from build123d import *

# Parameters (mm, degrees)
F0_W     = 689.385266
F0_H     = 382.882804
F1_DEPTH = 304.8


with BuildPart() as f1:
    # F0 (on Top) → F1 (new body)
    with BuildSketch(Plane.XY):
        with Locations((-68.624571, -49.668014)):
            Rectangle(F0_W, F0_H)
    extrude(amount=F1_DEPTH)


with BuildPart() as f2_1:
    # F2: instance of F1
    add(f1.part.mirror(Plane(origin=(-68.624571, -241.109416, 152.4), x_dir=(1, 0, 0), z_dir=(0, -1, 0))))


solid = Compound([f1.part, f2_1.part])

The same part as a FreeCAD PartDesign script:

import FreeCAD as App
import Part
import Sketcher
from FreeCAD import Vector
Q = App.Units.Quantity

doc = App.newDocument("Part")
body = doc.addObject("PartDesign::Body", "Body")

# Sketch on XY plane
sketch1 = body.newObject("Sketcher::SketchObject", "Sketch")
sketch1.AttachmentSupport = (doc.getObject("XY_Plane"), [""])
sketch1.MapMode = "FlatFace"
sketch1.addGeometry([
    Part.LineSegment(Vector(-413.317204, 141.773388, 0), Vector(-413.317204, -241.109416, 0)),
    Part.LineSegment(Vector(-413.317204, -241.109416, 0), Vector(276.068062, -241.109416, 0)),
    Part.LineSegment(Vector(276.068062, -241.109416, 0), Vector(276.068062, 141.773388, 0)),
    Part.LineSegment(Vector(276.068062, 141.773388, 0), Vector(-413.317204, 141.773388, 0)),
], False)
sketch1.addConstraint([
    Sketcher.Constraint("Coincident", 0, 2, 1, 1),
    Sketcher.Constraint("Coincident", 1, 2, 2, 1),
    Sketcher.Constraint("Coincident", 2, 2, 3, 1),
    Sketcher.Constraint("Coincident", 3, 2, 0, 1),
    Sketcher.Constraint("Vertical", 0),
    Sketcher.Constraint("Horizontal", 1),
    Sketcher.Constraint("Vertical", 2),
    Sketcher.Constraint("Horizontal", 3),
    Sketcher.Constraint("DistanceX", 1, 1, 1, 2, 689.385266),
    Sketcher.Constraint("DistanceY", 0, 2, 0, 1, 382.882804),
    Sketcher.Constraint("DistanceX", -1, 1, 1, 2, 276.068062),
    Sketcher.Constraint("DistanceY", -1, 1, 2, 2, 141.773388),
])
pad1 = body.newObject("PartDesign::Pad", "Pad")
pad1.Profile = sketch1
pad1.Length = Q("12 in")
body2 = doc.addObject("PartDesign::Body", "Body001")
doc.recompute()

mirroring = doc.addObject("Part::Mirroring", "Mirroring")
mirroring.Source = body
mirroring.Base = Vector(-68.624571, -241.109416, 152.4)
mirroring.Normal = Vector(0, -1, 0)
body2.BaseFeature = mirroring
doc.recompute()
mirroring.Visibility = False

doc.recompute()
